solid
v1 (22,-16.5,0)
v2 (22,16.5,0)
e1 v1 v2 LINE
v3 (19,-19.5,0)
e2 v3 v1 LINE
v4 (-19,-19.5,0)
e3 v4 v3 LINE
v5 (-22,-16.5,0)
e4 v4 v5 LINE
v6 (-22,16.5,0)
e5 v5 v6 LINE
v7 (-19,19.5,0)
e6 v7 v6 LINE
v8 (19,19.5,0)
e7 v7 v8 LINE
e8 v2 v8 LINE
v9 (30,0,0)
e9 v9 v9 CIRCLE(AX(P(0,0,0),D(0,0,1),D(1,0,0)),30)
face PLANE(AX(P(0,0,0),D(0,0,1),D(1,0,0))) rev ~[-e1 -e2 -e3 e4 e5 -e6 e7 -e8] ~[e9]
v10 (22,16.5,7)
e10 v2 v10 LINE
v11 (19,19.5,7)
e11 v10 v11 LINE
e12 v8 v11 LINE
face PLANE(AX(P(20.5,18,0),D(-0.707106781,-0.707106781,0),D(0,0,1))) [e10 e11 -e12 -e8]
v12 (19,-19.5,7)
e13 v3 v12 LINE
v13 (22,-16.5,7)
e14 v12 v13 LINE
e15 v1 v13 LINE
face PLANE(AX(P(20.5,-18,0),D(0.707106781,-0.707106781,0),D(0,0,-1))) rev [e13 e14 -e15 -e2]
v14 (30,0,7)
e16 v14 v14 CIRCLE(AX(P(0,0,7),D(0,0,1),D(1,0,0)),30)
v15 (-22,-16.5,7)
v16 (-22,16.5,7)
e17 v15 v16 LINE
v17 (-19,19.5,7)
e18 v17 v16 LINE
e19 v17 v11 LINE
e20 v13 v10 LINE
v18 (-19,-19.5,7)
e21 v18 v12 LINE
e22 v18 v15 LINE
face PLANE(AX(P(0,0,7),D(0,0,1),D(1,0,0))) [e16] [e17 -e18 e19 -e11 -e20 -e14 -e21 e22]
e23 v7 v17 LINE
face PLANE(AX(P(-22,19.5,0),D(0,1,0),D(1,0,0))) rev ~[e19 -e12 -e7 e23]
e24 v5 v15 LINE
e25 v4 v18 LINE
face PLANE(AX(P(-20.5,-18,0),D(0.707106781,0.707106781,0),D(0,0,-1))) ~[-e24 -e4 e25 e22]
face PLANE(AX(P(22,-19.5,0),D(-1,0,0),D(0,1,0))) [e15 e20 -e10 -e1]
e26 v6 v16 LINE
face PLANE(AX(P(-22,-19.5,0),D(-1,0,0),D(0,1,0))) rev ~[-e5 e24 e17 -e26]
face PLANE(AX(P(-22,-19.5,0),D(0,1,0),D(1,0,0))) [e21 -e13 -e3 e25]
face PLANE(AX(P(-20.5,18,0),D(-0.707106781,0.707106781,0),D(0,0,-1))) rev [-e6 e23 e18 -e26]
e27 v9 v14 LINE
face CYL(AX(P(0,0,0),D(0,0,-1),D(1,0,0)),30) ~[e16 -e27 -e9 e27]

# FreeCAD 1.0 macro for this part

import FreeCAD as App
import Part
import Sketcher

V = App.Vector


def edges_at(feature, points):
    """Names of the edges that pass closest to the given points."""
    edges = feature.Shape.Edges
    near = lambda p: min(range(len(edges)), key=lambda i: edges[i].distToShape(Part.Vertex(*p))[0])
    return sorted({f"Edge{near(p) + 1}" for p in points})

doc = App.newDocument("Part")
body = doc.addObject("PartDesign::Body", "Body")

# Sketch on XY plane
sketch1 = body.newObject("Sketcher::SketchObject", "Sketch")
sketch1.AttachmentSupport = (doc.getObject("XY_Plane"), [""])
sketch1.MapMode = "FlatFace"
sketch1.addGeometry([
    Part.Circle(V(0, 0, 0), V(0, 0, 1), 30),  # 0
    Part.LineSegment(V(22, -20, 0), V(-22, -20, 0)),  # 1
    Part.LineSegment(V(-22, -20, 0), V(-22, 20, 0)),  # 2
    Part.LineSegment(V(-22, 20, 0), V(22, 20, 0)),  # 3
    Part.LineSegment(V(22, 20, 0), V(22, -20, 0)),  # 4
], False)
sketch1.addConstraint([
    Sketcher.Constraint("Coincident", 1, 2, 2, 1),
    Sketcher.Constraint("Coincident", 2, 2, 3, 1),
    Sketcher.Constraint("Coincident", 3, 2, 4, 1),
    Sketcher.Constraint("Coincident", 4, 2, 1, 1),
    Sketcher.Constraint("Horizontal", 1),
    Sketcher.Constraint("Vertical", 2),
    Sketcher.Constraint("Horizontal", 3),
    Sketcher.Constraint("Vertical", 4),
    Sketcher.Constraint("Coincident", 0, 3, -1, 1),
    Sketcher.Constraint("Symmetric", 1, 2, 3, 2, -1, 1),
    Sketcher.Constraint("Diameter", 0, 60.0),
    Sketcher.Constraint("DistanceX", 1, 2, 1, 1, 44.0),
    Sketcher.Constraint("DistanceY", 2, 1, 2, 2, 39.0),
])
pad1 = body.newObject("PartDesign::Pad", "Pad")
pad1.Profile = sketch1
pad1.Length = 7
doc.recompute()

chamfer = body.newObject("PartDesign::Chamfer", "Chamfer")
chamfer.Base = (pad1, edges_at(pad1, [
    (-22, 19.5, 3.5),
    (22, 19.5, 3.5),
    (-22, -19.5, 3.5),
    (22, -19.5, 3.5),
]))
chamfer.Size = 3

doc.recompute()
